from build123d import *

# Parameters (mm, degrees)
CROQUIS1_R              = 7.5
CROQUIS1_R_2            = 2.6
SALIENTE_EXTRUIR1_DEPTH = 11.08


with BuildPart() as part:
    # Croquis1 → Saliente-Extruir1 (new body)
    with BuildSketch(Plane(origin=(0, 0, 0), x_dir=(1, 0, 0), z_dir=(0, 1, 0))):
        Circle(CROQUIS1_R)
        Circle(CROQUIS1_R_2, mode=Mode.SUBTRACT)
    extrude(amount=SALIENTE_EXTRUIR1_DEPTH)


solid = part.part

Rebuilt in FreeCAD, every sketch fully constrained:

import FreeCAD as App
import Part
import Sketcher

V = App.Vector

doc = App.newDocument("Part")
params = doc.addObject("Spreadsheet::Sheet", "Params")
for row, (alias, value) in enumerate([
    ("sketch1_diameter", "15 mm"),
    ("sketch1_diameter2", "5.2 mm"),
    ("pad1_length", "11.08 mm"),
], start=1):
    params.set(f"A{row}", alias)
    params.set(f"B{row}", "=" + value)
    params.setAlias(f"B{row}", alias)

body = doc.addObject("PartDesign::Body", "Body")

# Sketch on XZ plane
sketch1 = body.newObject("Sketcher::SketchObject", "Sketch")
sketch1.AttachmentSupport = (doc.getObject("XZ_Plane"), [""])
sketch1.MapMode = "FlatFace"
sketch1.addGeometry([
    Part.Circle(V(0, 0, 0), V(0, 0, 1), 7.5),
    Part.Circle(V(0, 0, 0), V(0, 0, 1), 2.6),
], False)
sketch1.addConstraint([
    Sketcher.Constraint("Coincident", 0, 3, -1, 1),
    Sketcher.Constraint("Coincident", 1, 3, -1, 1),
    Sketcher.Constraint("Diameter", 0, 15.0),
    Sketcher.Constraint("Diameter", 1, 5.2),
])
sketch1.setExpression("Constraints[2]", "Params.sketch1_diameter")
sketch1.setExpression("Constraints[3]", "Params.sketch1_diameter2")
pad1 = body.newObject("PartDesign::Pad", "Pad")
pad1.Profile = sketch1
pad1.setExpression("Length", "Params.pad1_length")
pad1.Reversed = True

doc.recompute()
